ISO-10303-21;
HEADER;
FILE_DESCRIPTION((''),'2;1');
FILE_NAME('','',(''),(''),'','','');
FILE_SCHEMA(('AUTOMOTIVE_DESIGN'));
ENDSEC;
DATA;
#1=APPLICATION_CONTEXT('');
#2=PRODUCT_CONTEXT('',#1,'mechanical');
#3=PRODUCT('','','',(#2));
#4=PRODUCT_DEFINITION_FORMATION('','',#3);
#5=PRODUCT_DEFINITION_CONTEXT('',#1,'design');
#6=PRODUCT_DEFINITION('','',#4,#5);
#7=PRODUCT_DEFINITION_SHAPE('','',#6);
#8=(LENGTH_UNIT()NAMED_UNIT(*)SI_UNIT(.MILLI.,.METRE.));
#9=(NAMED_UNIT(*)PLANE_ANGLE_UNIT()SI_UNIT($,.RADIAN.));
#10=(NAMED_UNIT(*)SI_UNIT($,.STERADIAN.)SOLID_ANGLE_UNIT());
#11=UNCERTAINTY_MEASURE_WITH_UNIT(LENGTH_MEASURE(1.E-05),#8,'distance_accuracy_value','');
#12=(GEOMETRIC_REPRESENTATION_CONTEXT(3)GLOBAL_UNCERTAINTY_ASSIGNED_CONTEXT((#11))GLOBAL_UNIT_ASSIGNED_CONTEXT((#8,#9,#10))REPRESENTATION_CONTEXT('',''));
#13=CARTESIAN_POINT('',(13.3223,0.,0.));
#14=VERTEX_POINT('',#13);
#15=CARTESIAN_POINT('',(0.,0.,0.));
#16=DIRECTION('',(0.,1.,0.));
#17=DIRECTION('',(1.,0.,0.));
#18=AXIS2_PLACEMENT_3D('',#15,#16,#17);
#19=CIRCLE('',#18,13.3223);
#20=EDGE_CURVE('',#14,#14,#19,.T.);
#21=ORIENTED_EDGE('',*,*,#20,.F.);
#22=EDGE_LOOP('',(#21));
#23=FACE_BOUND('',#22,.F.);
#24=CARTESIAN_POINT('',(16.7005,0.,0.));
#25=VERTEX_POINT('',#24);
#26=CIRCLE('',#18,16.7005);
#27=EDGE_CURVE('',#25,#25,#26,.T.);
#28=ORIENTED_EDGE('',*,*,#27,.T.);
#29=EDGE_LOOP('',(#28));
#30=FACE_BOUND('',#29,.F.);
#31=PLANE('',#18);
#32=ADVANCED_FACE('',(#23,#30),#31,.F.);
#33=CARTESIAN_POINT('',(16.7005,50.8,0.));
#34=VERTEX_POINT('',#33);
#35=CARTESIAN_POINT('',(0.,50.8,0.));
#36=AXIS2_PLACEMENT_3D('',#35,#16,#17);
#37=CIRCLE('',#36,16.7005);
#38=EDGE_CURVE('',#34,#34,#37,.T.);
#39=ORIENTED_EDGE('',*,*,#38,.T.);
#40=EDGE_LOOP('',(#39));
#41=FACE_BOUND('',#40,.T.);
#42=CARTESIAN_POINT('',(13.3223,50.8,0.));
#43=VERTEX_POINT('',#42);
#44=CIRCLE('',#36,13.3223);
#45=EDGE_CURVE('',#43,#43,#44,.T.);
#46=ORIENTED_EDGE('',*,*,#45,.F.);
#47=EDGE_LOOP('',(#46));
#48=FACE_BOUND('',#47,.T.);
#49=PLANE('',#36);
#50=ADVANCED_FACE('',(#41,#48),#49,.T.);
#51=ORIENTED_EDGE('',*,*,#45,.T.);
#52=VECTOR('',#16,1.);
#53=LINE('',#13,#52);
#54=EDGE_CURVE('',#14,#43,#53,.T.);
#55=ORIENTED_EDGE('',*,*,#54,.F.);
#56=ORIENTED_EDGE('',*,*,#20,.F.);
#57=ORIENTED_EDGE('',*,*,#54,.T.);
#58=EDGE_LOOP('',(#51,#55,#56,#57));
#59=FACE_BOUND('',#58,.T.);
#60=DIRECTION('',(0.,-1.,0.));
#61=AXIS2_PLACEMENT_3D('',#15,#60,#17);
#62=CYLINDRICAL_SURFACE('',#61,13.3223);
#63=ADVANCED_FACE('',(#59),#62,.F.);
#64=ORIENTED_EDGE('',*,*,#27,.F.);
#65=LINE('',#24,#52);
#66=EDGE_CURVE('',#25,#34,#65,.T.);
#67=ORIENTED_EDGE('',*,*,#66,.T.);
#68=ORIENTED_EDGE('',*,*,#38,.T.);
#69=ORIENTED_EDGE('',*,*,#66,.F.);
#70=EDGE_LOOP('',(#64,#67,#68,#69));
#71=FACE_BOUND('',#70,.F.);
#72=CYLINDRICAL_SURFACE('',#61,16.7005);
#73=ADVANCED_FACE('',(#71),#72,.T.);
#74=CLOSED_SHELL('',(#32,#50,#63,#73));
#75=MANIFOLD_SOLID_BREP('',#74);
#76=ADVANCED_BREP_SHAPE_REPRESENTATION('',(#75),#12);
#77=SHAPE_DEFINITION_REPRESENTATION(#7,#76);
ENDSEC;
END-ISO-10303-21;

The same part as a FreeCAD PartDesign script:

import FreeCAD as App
import Part
import Sketcher
from FreeCAD import Vector
Q = App.Units.Quantity

doc = App.newDocument("Part")
body = doc.addObject("PartDesign::Body", "Body")

sketch1 = body.newObject("Sketcher::SketchObject", "Sketch")
sketch1.AttachmentSupport = (doc.getObject("XZ_Plane"), [""])
sketch1.MapMode = "FlatFace"
sketch1.addGeometry(Part.Circle(Vector(0, 0, 0), Vector(0, 0, 1), 17), False)
sketch1.addGeometry(Part.Circle(Vector(0, 0, 0), Vector(0, 0, 1), 13), False)
sketch1.addConstraint(Sketcher.Constraint("Coincident", 0, 3, -1, 1))
sketch1.addConstraint(Sketcher.Constraint("Coincident", 1, 3, -1, 1))
sketch1.addConstraint(Sketcher.Constraint("Diameter", 0, Q("1.315 in")))
sketch1.addConstraint(Sketcher.Constraint("Diameter", 1, Q("1.049 in")))
pad1 = body.newObject("PartDesign::Pad", "Pad")
pad1.Profile = sketch1
pad1.Length = Q("2 in")
pad1.Reversed = True

doc.recompute()
